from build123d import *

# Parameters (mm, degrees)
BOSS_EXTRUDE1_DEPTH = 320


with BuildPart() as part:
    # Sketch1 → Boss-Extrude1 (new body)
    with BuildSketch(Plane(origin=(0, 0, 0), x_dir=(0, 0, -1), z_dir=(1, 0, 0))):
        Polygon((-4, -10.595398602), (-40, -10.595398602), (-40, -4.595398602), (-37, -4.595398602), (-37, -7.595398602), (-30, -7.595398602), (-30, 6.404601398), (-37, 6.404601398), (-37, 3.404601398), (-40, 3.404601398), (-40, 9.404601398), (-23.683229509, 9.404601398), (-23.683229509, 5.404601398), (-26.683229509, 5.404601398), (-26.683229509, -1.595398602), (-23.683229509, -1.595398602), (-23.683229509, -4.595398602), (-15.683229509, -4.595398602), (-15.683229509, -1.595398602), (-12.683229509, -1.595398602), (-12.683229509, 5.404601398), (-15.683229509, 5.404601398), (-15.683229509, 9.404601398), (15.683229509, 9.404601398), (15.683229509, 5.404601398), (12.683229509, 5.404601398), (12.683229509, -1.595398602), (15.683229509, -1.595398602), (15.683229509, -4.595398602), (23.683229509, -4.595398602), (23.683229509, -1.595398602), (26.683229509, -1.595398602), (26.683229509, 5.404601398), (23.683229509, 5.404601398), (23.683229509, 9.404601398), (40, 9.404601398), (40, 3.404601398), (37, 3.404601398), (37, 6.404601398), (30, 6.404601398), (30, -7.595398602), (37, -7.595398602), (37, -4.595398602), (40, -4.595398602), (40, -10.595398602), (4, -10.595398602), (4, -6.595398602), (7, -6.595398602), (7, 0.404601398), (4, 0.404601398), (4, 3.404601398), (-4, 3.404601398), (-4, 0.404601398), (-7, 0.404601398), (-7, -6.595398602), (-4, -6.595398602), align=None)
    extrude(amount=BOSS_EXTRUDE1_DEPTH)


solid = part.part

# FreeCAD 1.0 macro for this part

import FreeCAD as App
import Part
import Sketcher

V = App.Vector
Q = App.Units.Quantity

doc = App.newDocument("Part")
body = doc.addObject("PartDesign::Body", "Body")

sketch1 = body.newObject("Sketcher::SketchObject", "Sketch")
sketch1.AttachmentSupport = (doc.getObject("YZ_Plane"), [""])
sketch1.MapMode = "FlatFace"
sketch1.addGeometry([
    Part.LineSegment(V(-10.6, 40, 0), V(-10.6, 4, 0)),
    Part.LineSegment(V(-10.6, 4, 0), V(-6.6, 4, 0)),
    Part.LineSegment(V(-6.6, 4, 0), V(-6.6, 7, 0)),
    Part.LineSegment(V(-6.6, 7, 0), V(0.4, 7, 0)),
    Part.LineSegment(V(0.4, 7, 0), V(0.4, 4, 0)),
    Part.LineSegment(V(0.4, 4, 0), V(3.4, 4, 0)),
    Part.LineSegment(V(3.4, 4, 0), V(3.4, -4, 0)),
    Part.LineSegment(V(3.4, -4, 0), V(0.4, -4, 0)),
    Part.LineSegment(V(0.4, -4, 0), V(0.4, -7, 0)),
    Part.LineSegment(V(0.4, -7, 0), V(-6.6, -7, 0)),
    Part.LineSegment(V(-6.6, -7, 0), V(-6.6, -4, 0)),
    Part.LineSegment(V(-6.6, -4, 0), V(-10.6, -4, 0)),
    Part.LineSegment(V(-10.6, -4, 0), V(-10.6, -40, 0)),
    Part.LineSegment(V(-10.6, -40, 0), V(-4.6, -40, 0)),
    Part.LineSegment(V(-4.6, -40, 0), V(-4.6, -37, 0)),
    Part.LineSegment(V(-4.6, -37, 0), V(-7.6, -37, 0)),
    Part.LineSegment(V(-7.6, -37, 0), V(-7.6, -30, 0)),
    Part.LineSegment(V(-7.6, -30, 0), V(6.4, -30, 0)),
    Part.LineSegment(V(6.4, -30, 0), V(6.4, -37, 0)),
    Part.LineSegment(V(6.4, -37, 0), V(3.4, -37, 0)),
    Part.LineSegment(V(3.4, -37, 0), V(3.4, -40, 0)),
    Part.LineSegment(V(3.4, -40, 0), V(9.4, -40, 0)),
    Part.LineSegment(V(9.4, -40, 0), V(9.4, -23.7, 0)),
    Part.LineSegment(V(9.4, -23.7, 0), V(5.4, -23.7, 0)),
    Part.LineSegment(V(5.4, -23.7, 0), V(5.4, -26.7, 0)),
    Part.LineSegment(V(5.4, -26.7, 0), V(-1.6, -26.7, 0)),
    Part.LineSegment(V(-1.6, -26.7, 0), V(-1.6, -23.7, 0)),
    Part.LineSegment(V(-1.6, -23.7, 0), V(-4.6, -23.7, 0)),
    Part.LineSegment(V(-4.6, -23.7, 0), V(-4.6, -15.7, 0)),
    Part.LineSegment(V(-4.6, -15.7, 0), V(-1.6, -15.7, 0)),
    Part.LineSegment(V(-1.6, -15.7, 0), V(-1.6, -12.7, 0)),
    Part.LineSegment(V(-1.6, -12.7, 0), V(5.4, -12.7, 0)),
    Part.LineSegment(V(5.4, -12.7, 0), V(5.4, -15.7, 0)),
    Part.LineSegment(V(5.4, -15.7, 0), V(9.4, -15.7, 0)),
    Part.LineSegment(V(9.4, -15.7, 0), V(9.4, 15.7, 0)),
    Part.LineSegment(V(9.4, 15.7, 0), V(5.4, 15.7, 0)),
    Part.LineSegment(V(5.4, 15.7, 0), V(5.4, 12.7, 0)),
    Part.LineSegment(V(5.4, 12.7, 0), V(-1.6, 12.7, 0)),
    Part.LineSegment(V(-1.6, 12.7, 0), V(-1.6, 15.7, 0)),
    Part.LineSegment(V(-1.6, 15.7, 0), V(-4.6, 15.7, 0)),
    Part.LineSegment(V(-4.6, 15.7, 0), V(-4.6, 23.7, 0)),
    Part.LineSegment(V(-4.6, 23.7, 0), V(-1.6, 23.7, 0)),
    Part.LineSegment(V(-1.6, 23.7, 0), V(-1.6, 26.7, 0)),
    Part.LineSegment(V(-1.6, 26.7, 0), V(5.4, 26.7, 0)),
    Part.LineSegment(V(5.4, 26.7, 0), V(5.4, 23.7, 0)),
    Part.LineSegment(V(5.4, 23.7, 0), V(9.4, 23.7, 0)),
    Part.LineSegment(V(9.4, 23.7, 0), V(9.4, 40, 0)),
    Part.LineSegment(V(9.4, 40, 0), V(3.4, 40, 0)),
    Part.LineSegment(V(3.4, 40, 0), V(3.4, 37, 0)),
    Part.LineSegment(V(3.4, 37, 0), V(6.4, 37, 0)),
    Part.LineSegment(V(6.4, 37, 0), V(6.4, 30, 0)),
    Part.LineSegment(V(6.4, 30, 0), V(-7.6, 30, 0)),
    Part.LineSegment(V(-7.6, 30, 0), V(-7.6, 37, 0)),
    Part.LineSegment(V(-7.6, 37, 0), V(-4.6, 37, 0)),
    Part.LineSegment(V(-4.6, 37, 0), V(-4.6, 40, 0)),
    Part.LineSegment(V(-4.6, 40, 0), V(-10.6, 40, 0)),
], False)
sketch1.addConstraint([
    Sketcher.Constraint("Coincident", 0, 2, 1, 1),
    Sketcher.Constraint("Coincident", 1, 2, 2, 1),
    Sketcher.Constraint("Coincident", 2, 2, 3, 1),
    Sketcher.Constraint("Coincident", 3, 2, 4, 1),
    Sketcher.Constraint("Coincident", 4, 2, 5, 1),
    Sketcher.Constraint("Coincident", 5, 2, 6, 1),
    Sketcher.Constraint("Coincident", 6, 2, 7, 1),
    Sketcher.Constraint("Coincident", 7, 2, 8, 1),
    Sketcher.Constraint("Coincident", 8, 2, 9, 1),
    Sketcher.Constraint("Coincident", 9, 2, 10, 1),
    Sketcher.Constraint("Coincident", 10, 2, 11, 1),
    Sketcher.Constraint("Coincident", 11, 2, 12, 1),
    Sketcher.Constraint("Coincident", 12, 2, 13, 1),
    Sketcher.Constraint("Coincident", 13, 2, 14, 1),
    Sketcher.Constraint("Coincident", 14, 2, 15, 1),
    Sketcher.Constraint("Coincident", 15, 2, 16, 1),
    Sketcher.Constraint("Coincident", 16, 2, 17, 1),
    Sketcher.Constraint("Coincident", 17, 2, 18, 1),
    Sketcher.Constraint("Coincident", 18, 2, 19, 1),
    Sketcher.Constraint("Coincident", 19, 2, 20, 1),
    Sketcher.Constraint("Coincident", 20, 2, 21, 1),
    Sketcher.Constraint("Coincident", 21, 2, 22, 1),
    Sketcher.Constraint("Coincident", 22, 2, 23, 1),
    Sketcher.Constraint("Coincident", 23, 2, 24, 1),
    Sketcher.Constraint("Coincident", 24, 2, 25, 1),
    Sketcher.Constraint("Coincident", 25, 2, 26, 1),
    Sketcher.Constraint("Coincident", 26, 2, 27, 1),
    Sketcher.Constraint("Coincident", 27, 2, 28, 1),
    Sketcher.Constraint("Coincident", 28, 2, 29, 1),
    Sketcher.Constraint("Coincident", 29, 2, 30, 1),
    Sketcher.Constraint("Coincident", 30, 2, 31, 1),
    Sketcher.Constraint("Coincident", 31, 2, 32, 1),
    Sketcher.Constraint("Coincident", 32, 2, 33, 1),
    Sketcher.Constraint("Coincident", 33, 2, 34, 1),
    Sketcher.Constraint("Coincident", 34, 2, 35, 1),
    Sketcher.Constraint("Coincident", 35, 2, 36, 1),
    Sketcher.Constraint("Coincident", 36, 2, 37, 1),
    Sketcher.Constraint("Coincident", 37, 2, 38, 1),
    Sketcher.Constraint("Coincident", 38, 2, 39, 1),
    Sketcher.Constraint("Coincident", 39, 2, 40, 1),
    Sketcher.Constraint("Coincident", 40, 2, 41, 1),
    Sketcher.Constraint("Coincident", 41, 2, 42, 1),
    Sketcher.Constraint("Coincident", 42, 2, 43, 1),
    Sketcher.Constraint("Coincident", 43, 2, 44, 1),
    Sketcher.Constraint("Coincident", 44, 2, 45, 1),
    Sketcher.Constraint("Coincident", 45, 2, 46, 1),
    Sketcher.Constraint("Coincident", 46, 2, 47, 1),
    Sketcher.Constraint("Coincident", 47, 2, 48, 1),
    Sketcher.Constraint("Coincident", 48, 2, 49, 1),
    Sketcher.Constraint("Coincident", 49, 2, 50, 1),
    Sketcher.Constraint("Coincident", 50, 2, 51, 1),
    Sketcher.Constraint("Coincident", 51, 2, 52, 1),
    Sketcher.Constraint("Coincident", 52, 2, 53, 1),
    Sketcher.Constraint("Coincident", 53, 2, 54, 1),
    Sketcher.Constraint("Coincident", 54, 2, 55, 1),
    Sketcher.Constraint("Coincident", 55, 2, 0, 1),
    Sketcher.Constraint("Vertical", 0),
    Sketcher.Constraint("Horizontal", 1),
    Sketcher.Constraint("Vertical", 2),
    Sketcher.Constraint("Horizontal", 3),
    Sketcher.Constraint("Vertical", 4),
    Sketcher.Constraint("Horizontal", 5),
    Sketcher.Constraint("Vertical", 6),
    Sketcher.Constraint("Horizontal", 7),
    Sketcher.Constraint("Vertical", 8),
    Sketcher.Constraint("Horizontal", 9),
    Sketcher.Constraint("Vertical", 10),
    Sketcher.Constraint("Horizontal", 11),
    Sketcher.Constraint("Vertical", 12),
    Sketcher.Constraint("Horizontal", 13),
    Sketcher.Constraint("Vertical", 14),
    Sketcher.Constraint("Horizontal", 15),
    Sketcher.Constraint("Vertical", 16),
    Sketcher.Constraint("Horizontal", 17),
    Sketcher.Constraint("Vertical", 18),
    Sketcher.Constraint("Horizontal", 19),
    Sketcher.Constraint("Vertical", 20),
    Sketcher.Constraint("Horizontal", 21),
    Sketcher.Constraint("Vertical", 22),
    Sketcher.Constraint("Horizontal", 23),
    Sketcher.Constraint("Vertical", 24),
    Sketcher.Constraint("Horizontal", 25),
    Sketcher.Constraint("Vertical", 26),
    Sketcher.Constraint("Horizontal", 27),
    Sketcher.Constraint("Vertical", 28),
    Sketcher.Constraint("Horizontal", 29),
    Sketcher.Constraint("Vertical", 30),
    Sketcher.Constraint("Horizontal", 31),
    Sketcher.Constraint("Vertical", 32),
    Sketcher.Constraint("Horizontal", 33),
    Sketcher.Constraint("Vertical", 34),
    Sketcher.Constraint("Horizontal", 35),
    Sketcher.Constraint("Vertical", 36),
    Sketcher.Constraint("Horizontal", 37),
    Sketcher.Constraint("Vertical", 38),
    Sketcher.Constraint("Horizontal", 39),
    Sketcher.Constraint("Vertical", 40),
    Sketcher.Constraint("Horizontal", 41),
    Sketcher.Constraint("Vertical", 42),
    Sketcher.Constraint("Horizontal", 43),
    Sketcher.Constraint("Vertical", 44),
    Sketcher.Constraint("Horizontal", 45),
    Sketcher.Constraint("Vertical", 46),
    Sketcher.Constraint("Horizontal", 47),
    Sketcher.Constraint("Vertical", 48),
    Sketcher.Constraint("Horizontal", 49),
    Sketcher.Constraint("Vertical", 50),
    Sketcher.Constraint("Horizontal", 51),
    Sketcher.Constraint("Vertical", 52),
    Sketcher.Constraint("Horizontal", 53),
    Sketcher.Constraint("Vertical", 54),
    Sketcher.Constraint("Horizontal", 55),
    Sketcher.Constraint("Symmetric", 4, 2, 7, 2, -1),
    Sketcher.Constraint("Symmetric", 2, 2, 9, 2, -1),
    Sketcher.Constraint("Symmetric", 0, 2, 11, 2, -1),
    Sketcher.Constraint("Symmetric", 32, 2, 35, 2, -1),
    Sketcher.Constraint("Symmetric", 30, 2, 37, 2, -1),
    Sketcher.Constraint("Symmetric", 28, 2, 39, 2, -1),
    Sketcher.Constraint("Symmetric", 26, 2, 41, 2, -1),
    Sketcher.Constraint("Symmetric", 24, 2, 43, 2, -1),
    Sketcher.Constraint("Symmetric", 22, 2, 45, 2, -1),
    Sketcher.Constraint("Symmetric", 20, 2, 47, 2, -1),
    Sketcher.Constraint("Symmetric", 18, 2, 49, 2, -1),
    Sketcher.Constraint("Symmetric", 16, 2, 51, 2, -1),
    Sketcher.Constraint("Symmetric", 14, 2, 53, 2, -1),
    Sketcher.Constraint("Horizontal", 1, 2, 4, 2),
    Sketcher.Constraint("Horizontal", 15, 2, 18, 2),
    Sketcher.Constraint("Horizontal", 13, 2, 20, 2),
    Sketcher.Constraint("Horizontal", 23, 2, 26, 2),
    Sketcher.Constraint("Horizontal", 29, 2, 32, 2),
    Sketcher.Constraint("Horizontal", 47, 2, 54, 2),
    Sketcher.Constraint("Vertical", 6, 2, 19, 2),
    Sketcher.Constraint("Vertical", 14, 2, 27, 2),
    Sketcher.Constraint("Vertical", 26, 2, 29, 2),
    Sketcher.Constraint("Vertical", 24, 2, 31, 2),
    Sketcher.Constraint("Vertical", 22, 2, 33, 2),
    Sketcher.Constraint("Equal", 7, 15),
    Sketcher.Constraint("Equal", 15, 19),
    Sketcher.Constraint("Equal", 13, 21),
    Sketcher.Constraint("Equal", 11, 23),
    Sketcher.Constraint("Equal", 9, 25),
    Sketcher.Constraint("Equal", 53, 2),
    Sketcher.Constraint("Equal", 10, 14),
    Sketcher.Constraint("Equal", 43, 16),
    Sketcher.Constraint("Equal", 20, 24),
    Sketcher.Constraint("Equal", 6, 28),
    Sketcher.Constraint("Equal", 26, 30),
    Sketcher.Constraint("DistanceX", 1, 1, 1, 2, Q("4 mm")),
    Sketcher.Constraint("DistanceX", 3, 1, 3, 2, Q("7 mm")),
    Sketcher.Constraint("DistanceX", 5, 1, 5, 2, Q("3 mm")),
    Sketcher.Constraint("DistanceX", 13, 1, 13, 2, Q("6 mm")),
    Sketcher.Constraint("DistanceY", 0, 2, 0, 1, Q("36 mm")),
    Sketcher.Constraint("DistanceY", 6, 2, 6, 1, Q("8 mm")),
    Sketcher.Constraint("DistanceY", 22, 1, 22, 2, Q("16.31677 mm")),
    Sketcher.Constraint("DistanceX", 0, 2, -1, 1, Q("10.595399 mm")),
])
pad1 = body.newObject("PartDesign::Pad", "Pad")
pad1.Profile = sketch1
pad1.Length = 320

doc.recompute()
